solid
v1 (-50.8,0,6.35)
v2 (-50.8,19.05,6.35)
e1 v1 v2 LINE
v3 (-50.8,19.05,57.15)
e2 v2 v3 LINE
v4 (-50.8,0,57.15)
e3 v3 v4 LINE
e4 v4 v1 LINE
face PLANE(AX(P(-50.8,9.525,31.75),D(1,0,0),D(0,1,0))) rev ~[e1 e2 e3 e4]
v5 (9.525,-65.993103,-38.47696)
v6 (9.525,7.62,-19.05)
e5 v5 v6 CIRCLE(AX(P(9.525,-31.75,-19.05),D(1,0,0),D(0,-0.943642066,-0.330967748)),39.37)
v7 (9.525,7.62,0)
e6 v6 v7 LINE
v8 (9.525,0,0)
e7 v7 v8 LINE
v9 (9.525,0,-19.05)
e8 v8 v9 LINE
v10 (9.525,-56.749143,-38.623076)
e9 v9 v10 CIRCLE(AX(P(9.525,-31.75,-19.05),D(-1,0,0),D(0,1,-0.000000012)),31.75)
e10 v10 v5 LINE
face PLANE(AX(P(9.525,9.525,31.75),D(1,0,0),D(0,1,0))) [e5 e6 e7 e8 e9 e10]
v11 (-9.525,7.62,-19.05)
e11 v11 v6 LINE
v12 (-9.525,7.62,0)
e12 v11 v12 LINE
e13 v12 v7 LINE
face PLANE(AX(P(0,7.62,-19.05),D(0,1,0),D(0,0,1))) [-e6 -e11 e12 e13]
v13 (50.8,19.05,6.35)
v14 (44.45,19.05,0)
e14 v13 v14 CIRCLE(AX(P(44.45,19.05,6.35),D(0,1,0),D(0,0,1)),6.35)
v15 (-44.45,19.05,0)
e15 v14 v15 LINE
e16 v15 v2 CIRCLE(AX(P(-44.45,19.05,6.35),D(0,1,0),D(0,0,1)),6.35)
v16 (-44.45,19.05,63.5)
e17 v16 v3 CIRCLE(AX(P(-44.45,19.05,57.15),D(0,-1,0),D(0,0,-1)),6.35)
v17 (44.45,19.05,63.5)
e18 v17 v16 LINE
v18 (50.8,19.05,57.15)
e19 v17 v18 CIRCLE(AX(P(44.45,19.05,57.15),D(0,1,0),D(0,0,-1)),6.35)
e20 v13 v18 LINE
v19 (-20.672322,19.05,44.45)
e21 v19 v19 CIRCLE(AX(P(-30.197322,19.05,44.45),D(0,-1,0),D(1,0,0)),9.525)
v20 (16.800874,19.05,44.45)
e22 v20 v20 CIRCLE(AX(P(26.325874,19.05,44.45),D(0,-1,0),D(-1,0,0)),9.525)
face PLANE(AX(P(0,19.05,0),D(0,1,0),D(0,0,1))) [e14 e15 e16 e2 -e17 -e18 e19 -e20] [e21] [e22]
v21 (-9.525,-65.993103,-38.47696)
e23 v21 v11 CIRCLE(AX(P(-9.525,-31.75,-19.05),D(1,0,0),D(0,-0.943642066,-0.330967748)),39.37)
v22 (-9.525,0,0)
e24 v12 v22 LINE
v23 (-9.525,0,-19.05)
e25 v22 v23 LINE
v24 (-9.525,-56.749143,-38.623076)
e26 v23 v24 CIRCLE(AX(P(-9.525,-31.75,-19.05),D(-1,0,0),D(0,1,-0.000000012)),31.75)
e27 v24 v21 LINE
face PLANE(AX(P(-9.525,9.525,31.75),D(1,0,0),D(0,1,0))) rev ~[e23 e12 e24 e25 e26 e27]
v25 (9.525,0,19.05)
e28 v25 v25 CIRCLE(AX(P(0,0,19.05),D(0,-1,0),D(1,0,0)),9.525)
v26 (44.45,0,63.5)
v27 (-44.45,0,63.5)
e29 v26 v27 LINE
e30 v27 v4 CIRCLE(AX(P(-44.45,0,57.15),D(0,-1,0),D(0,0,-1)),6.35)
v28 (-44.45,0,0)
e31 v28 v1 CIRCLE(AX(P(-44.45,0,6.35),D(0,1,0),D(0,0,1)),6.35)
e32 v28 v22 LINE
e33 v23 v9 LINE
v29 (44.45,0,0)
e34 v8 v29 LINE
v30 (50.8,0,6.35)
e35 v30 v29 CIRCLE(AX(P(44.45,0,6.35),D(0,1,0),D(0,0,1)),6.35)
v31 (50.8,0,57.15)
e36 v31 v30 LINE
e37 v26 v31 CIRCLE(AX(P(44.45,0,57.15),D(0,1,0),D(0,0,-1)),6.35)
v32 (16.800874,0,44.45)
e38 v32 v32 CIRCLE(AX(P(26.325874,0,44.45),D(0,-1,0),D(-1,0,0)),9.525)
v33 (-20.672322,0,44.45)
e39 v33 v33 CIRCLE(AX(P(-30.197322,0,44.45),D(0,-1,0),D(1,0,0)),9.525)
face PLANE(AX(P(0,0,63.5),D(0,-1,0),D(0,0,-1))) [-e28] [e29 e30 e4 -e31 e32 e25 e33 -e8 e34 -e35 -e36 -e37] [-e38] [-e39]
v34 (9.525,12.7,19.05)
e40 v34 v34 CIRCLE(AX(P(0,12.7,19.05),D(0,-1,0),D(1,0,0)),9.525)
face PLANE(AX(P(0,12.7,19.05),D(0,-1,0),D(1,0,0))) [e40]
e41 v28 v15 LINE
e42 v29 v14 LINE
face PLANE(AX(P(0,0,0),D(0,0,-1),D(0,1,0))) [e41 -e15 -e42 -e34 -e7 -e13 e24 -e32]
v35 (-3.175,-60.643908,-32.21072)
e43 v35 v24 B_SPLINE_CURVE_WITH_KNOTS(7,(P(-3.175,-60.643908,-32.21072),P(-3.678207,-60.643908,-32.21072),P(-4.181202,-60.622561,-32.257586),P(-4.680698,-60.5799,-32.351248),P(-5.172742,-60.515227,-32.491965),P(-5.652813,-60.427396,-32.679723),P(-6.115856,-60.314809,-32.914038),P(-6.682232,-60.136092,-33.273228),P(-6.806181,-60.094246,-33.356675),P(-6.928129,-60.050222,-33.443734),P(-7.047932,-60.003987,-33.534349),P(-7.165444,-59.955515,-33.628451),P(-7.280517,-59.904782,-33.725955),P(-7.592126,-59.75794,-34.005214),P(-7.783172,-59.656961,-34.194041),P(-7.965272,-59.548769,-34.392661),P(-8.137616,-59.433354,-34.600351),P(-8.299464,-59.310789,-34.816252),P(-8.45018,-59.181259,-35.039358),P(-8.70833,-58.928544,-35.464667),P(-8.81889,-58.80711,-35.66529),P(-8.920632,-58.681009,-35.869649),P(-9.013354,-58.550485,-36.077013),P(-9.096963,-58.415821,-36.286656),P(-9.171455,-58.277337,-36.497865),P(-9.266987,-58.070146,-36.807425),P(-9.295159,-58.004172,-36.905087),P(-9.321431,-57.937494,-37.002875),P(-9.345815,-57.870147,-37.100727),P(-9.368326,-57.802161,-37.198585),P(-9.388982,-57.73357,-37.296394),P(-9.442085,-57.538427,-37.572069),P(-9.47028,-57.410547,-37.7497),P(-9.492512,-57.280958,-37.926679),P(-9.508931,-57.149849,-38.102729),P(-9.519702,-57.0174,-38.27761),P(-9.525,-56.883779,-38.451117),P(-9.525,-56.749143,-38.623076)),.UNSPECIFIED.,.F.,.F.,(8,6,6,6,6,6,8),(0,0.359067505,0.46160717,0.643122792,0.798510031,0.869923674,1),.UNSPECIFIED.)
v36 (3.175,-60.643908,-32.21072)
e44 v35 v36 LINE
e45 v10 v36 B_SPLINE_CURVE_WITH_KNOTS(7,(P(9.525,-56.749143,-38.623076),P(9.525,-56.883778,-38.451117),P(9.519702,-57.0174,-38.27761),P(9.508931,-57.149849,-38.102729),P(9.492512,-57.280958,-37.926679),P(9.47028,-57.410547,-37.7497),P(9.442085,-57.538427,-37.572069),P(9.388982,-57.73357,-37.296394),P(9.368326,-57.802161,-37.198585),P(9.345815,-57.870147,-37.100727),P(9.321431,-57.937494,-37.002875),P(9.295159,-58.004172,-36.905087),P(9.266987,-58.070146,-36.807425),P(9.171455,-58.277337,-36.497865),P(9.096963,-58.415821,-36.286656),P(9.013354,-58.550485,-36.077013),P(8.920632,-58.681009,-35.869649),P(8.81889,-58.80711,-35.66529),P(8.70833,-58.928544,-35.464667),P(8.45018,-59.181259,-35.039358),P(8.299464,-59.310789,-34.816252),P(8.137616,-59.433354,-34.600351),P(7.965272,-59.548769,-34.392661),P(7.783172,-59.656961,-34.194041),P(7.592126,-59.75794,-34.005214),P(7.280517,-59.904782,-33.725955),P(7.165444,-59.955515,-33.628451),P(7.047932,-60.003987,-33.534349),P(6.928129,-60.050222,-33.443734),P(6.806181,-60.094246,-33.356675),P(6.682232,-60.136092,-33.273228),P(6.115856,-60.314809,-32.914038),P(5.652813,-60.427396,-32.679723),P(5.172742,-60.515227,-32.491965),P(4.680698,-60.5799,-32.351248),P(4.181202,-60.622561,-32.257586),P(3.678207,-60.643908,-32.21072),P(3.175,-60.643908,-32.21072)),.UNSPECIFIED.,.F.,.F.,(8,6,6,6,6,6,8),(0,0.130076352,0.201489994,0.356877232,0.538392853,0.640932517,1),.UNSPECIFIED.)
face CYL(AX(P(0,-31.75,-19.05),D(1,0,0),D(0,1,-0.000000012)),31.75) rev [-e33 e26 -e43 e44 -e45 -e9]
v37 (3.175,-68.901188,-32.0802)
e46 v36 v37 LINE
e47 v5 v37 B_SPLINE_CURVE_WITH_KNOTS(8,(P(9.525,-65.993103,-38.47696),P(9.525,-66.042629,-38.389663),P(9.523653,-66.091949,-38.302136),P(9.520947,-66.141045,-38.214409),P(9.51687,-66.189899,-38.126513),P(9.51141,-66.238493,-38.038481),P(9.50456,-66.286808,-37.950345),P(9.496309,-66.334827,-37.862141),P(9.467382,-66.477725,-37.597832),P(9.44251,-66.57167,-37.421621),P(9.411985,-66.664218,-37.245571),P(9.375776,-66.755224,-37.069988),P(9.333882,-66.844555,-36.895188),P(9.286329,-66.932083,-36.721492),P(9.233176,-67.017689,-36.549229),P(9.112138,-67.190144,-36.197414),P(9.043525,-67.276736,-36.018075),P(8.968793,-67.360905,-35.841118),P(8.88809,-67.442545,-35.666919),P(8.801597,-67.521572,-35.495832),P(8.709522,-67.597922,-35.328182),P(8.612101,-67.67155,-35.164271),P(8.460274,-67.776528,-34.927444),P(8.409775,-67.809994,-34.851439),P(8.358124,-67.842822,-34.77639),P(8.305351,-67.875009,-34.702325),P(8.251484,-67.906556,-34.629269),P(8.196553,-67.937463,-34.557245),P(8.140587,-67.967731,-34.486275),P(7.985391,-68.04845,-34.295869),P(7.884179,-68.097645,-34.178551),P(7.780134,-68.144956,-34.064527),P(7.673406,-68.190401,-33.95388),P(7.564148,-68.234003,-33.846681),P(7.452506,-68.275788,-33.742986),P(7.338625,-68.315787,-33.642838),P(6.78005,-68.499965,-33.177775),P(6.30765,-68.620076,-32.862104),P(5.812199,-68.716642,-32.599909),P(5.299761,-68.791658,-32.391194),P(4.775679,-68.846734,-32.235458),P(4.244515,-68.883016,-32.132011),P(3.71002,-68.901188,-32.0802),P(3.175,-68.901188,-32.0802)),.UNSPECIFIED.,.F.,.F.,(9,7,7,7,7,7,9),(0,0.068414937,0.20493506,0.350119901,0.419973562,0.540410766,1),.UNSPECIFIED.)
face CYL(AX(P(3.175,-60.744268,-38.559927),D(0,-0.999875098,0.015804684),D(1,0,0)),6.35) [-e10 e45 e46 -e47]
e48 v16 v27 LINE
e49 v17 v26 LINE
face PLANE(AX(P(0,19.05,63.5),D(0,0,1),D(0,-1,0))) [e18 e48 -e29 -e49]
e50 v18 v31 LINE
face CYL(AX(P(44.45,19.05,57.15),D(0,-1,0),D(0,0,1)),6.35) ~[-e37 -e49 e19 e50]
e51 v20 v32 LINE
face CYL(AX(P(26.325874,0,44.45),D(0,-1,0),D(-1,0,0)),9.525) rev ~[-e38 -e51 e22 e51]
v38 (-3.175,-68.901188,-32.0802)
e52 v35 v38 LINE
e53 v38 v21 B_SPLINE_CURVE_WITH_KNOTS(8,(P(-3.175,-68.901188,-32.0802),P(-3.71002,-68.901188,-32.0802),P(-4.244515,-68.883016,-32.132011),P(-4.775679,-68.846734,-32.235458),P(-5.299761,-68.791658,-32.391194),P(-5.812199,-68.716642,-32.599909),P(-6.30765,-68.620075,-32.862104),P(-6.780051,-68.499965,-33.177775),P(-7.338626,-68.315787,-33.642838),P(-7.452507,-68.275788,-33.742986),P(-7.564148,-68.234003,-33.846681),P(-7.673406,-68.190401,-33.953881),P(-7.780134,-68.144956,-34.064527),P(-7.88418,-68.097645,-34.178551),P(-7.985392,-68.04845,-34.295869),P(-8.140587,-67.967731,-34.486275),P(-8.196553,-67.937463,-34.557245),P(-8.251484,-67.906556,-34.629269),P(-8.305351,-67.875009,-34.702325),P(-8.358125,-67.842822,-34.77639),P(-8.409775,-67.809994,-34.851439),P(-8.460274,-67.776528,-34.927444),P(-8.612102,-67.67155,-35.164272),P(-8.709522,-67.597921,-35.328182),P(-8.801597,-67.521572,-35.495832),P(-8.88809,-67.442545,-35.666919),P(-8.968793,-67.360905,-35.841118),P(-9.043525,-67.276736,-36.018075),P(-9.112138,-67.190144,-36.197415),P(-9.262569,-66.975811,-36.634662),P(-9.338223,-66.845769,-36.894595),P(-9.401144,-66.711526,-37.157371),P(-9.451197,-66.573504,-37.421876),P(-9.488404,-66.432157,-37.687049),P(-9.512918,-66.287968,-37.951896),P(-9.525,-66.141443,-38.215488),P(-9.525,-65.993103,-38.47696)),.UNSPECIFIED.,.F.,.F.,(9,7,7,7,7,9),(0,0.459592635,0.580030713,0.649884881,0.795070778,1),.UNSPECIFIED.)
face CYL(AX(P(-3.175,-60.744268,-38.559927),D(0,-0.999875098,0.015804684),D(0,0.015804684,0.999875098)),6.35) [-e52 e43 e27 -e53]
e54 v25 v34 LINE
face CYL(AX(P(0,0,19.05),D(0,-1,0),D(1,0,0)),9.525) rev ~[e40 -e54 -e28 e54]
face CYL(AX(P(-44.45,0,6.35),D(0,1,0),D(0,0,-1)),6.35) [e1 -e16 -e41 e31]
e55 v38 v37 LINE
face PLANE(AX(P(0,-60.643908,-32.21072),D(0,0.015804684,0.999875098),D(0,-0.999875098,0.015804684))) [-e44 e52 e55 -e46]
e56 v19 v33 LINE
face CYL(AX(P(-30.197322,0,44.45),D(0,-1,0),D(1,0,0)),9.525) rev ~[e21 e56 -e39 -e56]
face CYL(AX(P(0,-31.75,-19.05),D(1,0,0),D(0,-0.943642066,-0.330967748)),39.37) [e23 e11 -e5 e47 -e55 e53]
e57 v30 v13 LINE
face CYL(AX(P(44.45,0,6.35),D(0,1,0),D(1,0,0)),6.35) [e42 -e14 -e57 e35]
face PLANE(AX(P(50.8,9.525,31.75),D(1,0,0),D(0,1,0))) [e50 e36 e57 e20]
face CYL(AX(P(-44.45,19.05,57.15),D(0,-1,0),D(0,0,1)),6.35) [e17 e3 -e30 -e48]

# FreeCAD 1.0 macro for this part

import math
import FreeCAD as App
import Part
import Sketcher

V = App.Vector
Q = App.Units.Quantity


def edges_at(feature, points):
    """Names of the edges that pass closest to the given points."""
    edges = feature.Shape.Edges
    near = lambda p: min(range(len(edges)), key=lambda i: edges[i].distToShape(Part.Vertex(*p))[0])
    return sorted({f"Edge{near(p) + 1}" for p in points})


def add_polygon(sketch, points):
    """Adds a closed chain of lines whose ends are joined by coincident constraints."""
    first, n = sketch.GeometryCount, len(points)
    for a, b in zip(points, points[1:] + points[:1]):
        sketch.addGeometry(Part.LineSegment(App.Vector(*a, 0), App.Vector(*b, 0)), False)
    for i in range(n):
        sketch.addConstraint(Sketcher.Constraint("Coincident", first + i, 2, first + (i + 1) % n, 1))

doc = App.newDocument("Part")
body = doc.addObject("PartDesign::Body", "Body")

# Sketch on YZ plane
sketch1 = body.newObject("Sketcher::SketchObject", "Sketch")
sketch1.AttachmentSupport = (doc.getObject("YZ_Plane"), [""])
sketch1.MapMode = "FlatFace"
add_polygon(sketch1, [(0, 63.5), (0, 0), (19.05, 0), (19.05, 63.5)])  # lines 0-3
sketch1.addConstraint(Sketcher.Constraint("Vertical", 0))
sketch1.addConstraint(Sketcher.Constraint("Horizontal", 1))
sketch1.addConstraint(Sketcher.Constraint("Vertical", 2))
sketch1.addConstraint(Sketcher.Constraint("Horizontal", 3))
sketch1.addConstraint(Sketcher.Constraint("Coincident", 0, 2, -1, 1))
sketch1.addConstraint(Sketcher.Constraint("DistanceY", 0, 2, 0, 1, Q("2.5 in")))
sketch1.addConstraint(Sketcher.Constraint("DistanceX", 1, 1, 1, 2, Q("0.75 in")))
pad1 = body.newObject("PartDesign::Pad", "Pad")
pad1.Profile = sketch1
pad1.Length = Q("4 in")
pad1.Midplane = True

# Sketch on YZ plane
sketch2 = body.newObject("Sketcher::SketchObject", "Sketch001")
sketch2.AttachmentSupport = (doc.getObject("YZ_Plane"), [""])
sketch2.MapMode = "FlatFace"
sketch2.addGeometry(Part.LineSegment(V(0, 63.5, 0), V(0, -19.05, 0)), False)
sketch2.addGeometry(Part.ArcOfCircle(Part.Circle(V(-31.75, -19.05, 0), V(0, 0, 1), 31.75), math.radians(-155.511482), math.radians(-0.000001)), False)
sketch2.addGeometry(Part.LineSegment(V(-60.643908, -32.21072, 0), V(-68.901188, -32.0802, 0)), False)
sketch2.addGeometry(Part.ArcOfCircle(Part.Circle(V(-31.75, -19.05, 0), V(0, 0, 1), 39.37), math.radians(-160.672476), math.radians(0)), False)
sketch2.addGeometry(Part.LineSegment(V(7.62, -19.05, 0), V(7.62, 0, 0)), False)
sketch2.addGeometry(Part.LineSegment(V(7.62, 0, 0), V(19.05, 0, 0)), False)
sketch2.addGeometry(Part.LineSegment(V(19.05, 0, 0), V(19.05, 63.5, 0)), False)
sketch2.addGeometry(Part.LineSegment(V(19.05, 63.5, 0), V(0, 63.5, 0)), False)
sketch2.addConstraint(Sketcher.Constraint("Tangent", 0, 2, 1, 2))
sketch2.addConstraint(Sketcher.Constraint("Coincident", 1, 1, 2, 1))
sketch2.addConstraint(Sketcher.Constraint("Coincident", 2, 2, 3, 1))
sketch2.addConstraint(Sketcher.Constraint("Tangent", 3, 2, 4, 1))
sketch2.addConstraint(Sketcher.Constraint("Coincident", 4, 2, 5, 1))
sketch2.addConstraint(Sketcher.Constraint("Coincident", 5, 2, 6, 1))
sketch2.addConstraint(Sketcher.Constraint("Coincident", 6, 2, 7, 1))
sketch2.addConstraint(Sketcher.Constraint("Coincident", 7, 2, 0, 1))
sketch2.addConstraint(Sketcher.Constraint("Vertical", 0))
sketch2.addConstraint(Sketcher.Constraint("Vertical", 4))
sketch2.addConstraint(Sketcher.Constraint("Horizontal", 5))
sketch2.addConstraint(Sketcher.Constraint("Vertical", 6))
sketch2.addConstraint(Sketcher.Constraint("Horizontal", 7))
sketch2.addConstraint(Sketcher.Constraint("Coincident", 3, 3, 1, 3))
sketch2.addConstraint(Sketcher.Constraint("PointOnObject", 0, 2, -2))
sketch2.addConstraint(Sketcher.Constraint("PointOnObject", 4, 2, -1))
sketch2.addConstraint(Sketcher.Constraint("Equal", 7, 4))
sketch2.addConstraint(Sketcher.Constraint("Radius", 1, Q("1.25 in")))
sketch2.addConstraint(Sketcher.Constraint("Radius", 3, Q("1.55 in")))
sketch2.addConstraint(Sketcher.Constraint("DistanceY", 6, 1, 6, 2, Q("2.5 in")))
sketch2.addConstraint(Sketcher.Constraint("DistanceX", 1, 3, 5, 2, Q("2 in")))
sketch2.addConstraint(Sketcher.Constraint("DistanceY", 2, 2, -1, 1, Q("1.263 in")))
sketch2.addConstraint(Sketcher.Constraint("Distance", 2, 8.258311))
pad2 = body.newObject("PartDesign::Pad", "Pad001")
pad2.Profile = sketch2
pad2.Length = Q("0.75 in")
pad2.Midplane = True
doc.recompute()

fillet = body.newObject("PartDesign::Fillet", "Fillet")
fillet.Base = (pad2, edges_at(pad2, [
    (9.525, -64.773, -32.145),
    (-9.525, -64.773, -32.145),
    (50.8, 9.525, 0),
    (50.8, 9.525, 63.5),
    (-50.8, 9.525, 63.5),
    (-50.8, 9.525, 0),
]))
fillet.Radius = Q("0.25 in")

# Sketch on XZ plane
sketch3 = body.newObject("Sketcher::SketchObject", "Sketch002")
sketch3.AttachmentSupport = (doc.getObject("XZ_Plane"), [""])
sketch3.MapMode = "FlatFace"
sketch3.addGeometry(Part.Circle(V(-30.197322, 44.45, 0), V(0, 0, 1), 9.525), False)
sketch3.addGeometry(Part.Circle(V(26.325874, 44.45, 0), V(0, 0, 1), 9.525), False)
sketch3.addConstraint(Sketcher.Constraint("Equal", 0, 1))
sketch3.addConstraint(Sketcher.Constraint("Horizontal", 0, 3, 1, 3))
sketch3.addConstraint(Sketcher.Constraint("Diameter", 0, Q("0.75 in")))
sketch3.addConstraint(Sketcher.Constraint("DistanceY", -1, 1, 0, 3, Q("1.75 in")))
sketch3.addConstraint(Sketcher.Constraint("DistanceX", 0, 3, -1, 1, 30.197322))
sketch3.addConstraint(Sketcher.Constraint("DistanceX", -1, 1, 1, 3, 26.325874))
pocket1 = body.newObject("PartDesign::Pocket", "Pocket")
pocket1.Profile = sketch3
pocket1.Length = Q("1 in")

# Sketch on XZ plane
sketch4 = body.newObject("Sketcher::SketchObject", "Sketch003")
sketch4.AttachmentSupport = (doc.getObject("XZ_Plane"), [""])
sketch4.MapMode = "FlatFace"
sketch4.addGeometry(Part.Circle(V(-30.197322, 44.45, 0), V(0, 0, 1), 9.525), False)
sketch4.addGeometry(Part.Circle(V(26.325874, 44.45, 0), V(0, 0, 1), 9.525), False)
sketch4.addGeometry(Part.Circle(V(0, 19.05, 0), V(0, 0, 1), 9.525), False)
sketch4.addConstraint(Sketcher.Constraint("Equal", 0, 1))
sketch4.addConstraint(Sketcher.Constraint("Equal", 1, 2))
sketch4.addConstraint(Sketcher.Constraint("PointOnObject", 2, 3, -2))
sketch4.addConstraint(Sketcher.Constraint("Horizontal", 0, 3, 1, 3))
sketch4.addConstraint(Sketcher.Constraint("Diameter", 0, Q("0.75 in")))
sketch4.addConstraint(Sketcher.Constraint("DistanceY", 2, 3, 1, 3, Q("1 in")))
sketch4.addConstraint(Sketcher.Constraint("DistanceY", -1, 1, 0, 3, Q("1.75 in")))
sketch4.addConstraint(Sketcher.Constraint("DistanceX", 0, 3, -1, 1, 30.197322))
sketch4.addConstraint(Sketcher.Constraint("DistanceX", -1, 1, 1, 3, 26.325874))
pocket2 = body.newObject("PartDesign::Pocket", "Pocket001")
pocket2.Profile = sketch4
pocket2.Length = Q("0.5 in")

doc.recompute()
